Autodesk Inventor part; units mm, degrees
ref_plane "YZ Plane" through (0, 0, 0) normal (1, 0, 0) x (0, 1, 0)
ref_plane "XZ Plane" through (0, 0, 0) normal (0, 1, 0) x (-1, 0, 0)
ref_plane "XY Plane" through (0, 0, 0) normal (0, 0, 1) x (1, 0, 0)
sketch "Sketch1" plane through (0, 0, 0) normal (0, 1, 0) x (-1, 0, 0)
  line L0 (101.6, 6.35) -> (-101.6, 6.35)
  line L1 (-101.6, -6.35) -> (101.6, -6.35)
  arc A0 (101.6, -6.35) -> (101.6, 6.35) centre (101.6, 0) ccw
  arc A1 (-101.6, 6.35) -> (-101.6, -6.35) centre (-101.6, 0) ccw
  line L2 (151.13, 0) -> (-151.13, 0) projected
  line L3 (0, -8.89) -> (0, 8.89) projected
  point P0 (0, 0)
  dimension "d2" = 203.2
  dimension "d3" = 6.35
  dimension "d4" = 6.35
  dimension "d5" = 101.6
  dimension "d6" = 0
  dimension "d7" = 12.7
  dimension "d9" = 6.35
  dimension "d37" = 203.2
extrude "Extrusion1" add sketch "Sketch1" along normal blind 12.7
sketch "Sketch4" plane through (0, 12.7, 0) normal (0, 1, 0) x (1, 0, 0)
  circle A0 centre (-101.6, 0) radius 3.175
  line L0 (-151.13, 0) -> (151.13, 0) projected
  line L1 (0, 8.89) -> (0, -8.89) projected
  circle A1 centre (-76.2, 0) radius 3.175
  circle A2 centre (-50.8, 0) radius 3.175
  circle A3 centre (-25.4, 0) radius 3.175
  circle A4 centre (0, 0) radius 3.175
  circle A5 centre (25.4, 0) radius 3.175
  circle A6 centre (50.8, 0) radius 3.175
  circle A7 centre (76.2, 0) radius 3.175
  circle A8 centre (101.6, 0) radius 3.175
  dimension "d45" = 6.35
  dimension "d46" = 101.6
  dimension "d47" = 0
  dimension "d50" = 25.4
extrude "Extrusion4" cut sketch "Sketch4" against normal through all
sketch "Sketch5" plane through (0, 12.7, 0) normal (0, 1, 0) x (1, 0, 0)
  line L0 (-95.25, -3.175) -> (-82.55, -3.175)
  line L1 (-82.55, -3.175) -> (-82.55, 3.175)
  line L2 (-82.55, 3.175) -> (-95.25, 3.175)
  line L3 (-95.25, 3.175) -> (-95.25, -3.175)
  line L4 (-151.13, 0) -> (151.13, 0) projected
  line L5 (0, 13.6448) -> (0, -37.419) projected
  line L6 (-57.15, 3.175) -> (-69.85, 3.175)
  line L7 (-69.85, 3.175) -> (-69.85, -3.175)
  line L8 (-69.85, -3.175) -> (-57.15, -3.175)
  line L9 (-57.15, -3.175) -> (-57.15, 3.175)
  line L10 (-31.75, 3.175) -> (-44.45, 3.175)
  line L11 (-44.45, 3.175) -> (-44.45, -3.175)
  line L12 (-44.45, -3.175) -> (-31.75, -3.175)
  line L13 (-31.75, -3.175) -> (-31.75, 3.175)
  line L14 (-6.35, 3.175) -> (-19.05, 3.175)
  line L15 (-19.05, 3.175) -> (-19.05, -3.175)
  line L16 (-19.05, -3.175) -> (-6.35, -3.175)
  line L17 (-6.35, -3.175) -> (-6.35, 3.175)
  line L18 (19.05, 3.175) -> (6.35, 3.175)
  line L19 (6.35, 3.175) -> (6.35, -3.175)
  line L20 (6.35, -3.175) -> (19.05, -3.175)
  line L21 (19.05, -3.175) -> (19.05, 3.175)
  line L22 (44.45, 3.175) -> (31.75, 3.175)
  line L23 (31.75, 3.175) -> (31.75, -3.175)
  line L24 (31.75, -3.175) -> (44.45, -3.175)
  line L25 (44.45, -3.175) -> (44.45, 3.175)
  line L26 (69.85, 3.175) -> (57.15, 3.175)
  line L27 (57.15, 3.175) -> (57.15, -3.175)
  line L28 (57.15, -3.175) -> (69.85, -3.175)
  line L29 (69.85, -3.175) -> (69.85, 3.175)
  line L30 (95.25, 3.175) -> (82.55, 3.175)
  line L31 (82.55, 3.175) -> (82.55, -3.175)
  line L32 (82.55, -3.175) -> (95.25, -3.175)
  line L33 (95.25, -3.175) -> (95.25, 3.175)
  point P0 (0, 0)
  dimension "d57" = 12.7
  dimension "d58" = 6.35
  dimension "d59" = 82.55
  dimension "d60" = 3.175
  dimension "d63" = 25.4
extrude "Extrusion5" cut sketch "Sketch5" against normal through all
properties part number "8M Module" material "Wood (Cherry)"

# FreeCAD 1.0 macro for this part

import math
import FreeCAD as App
import Part
import Sketcher
from FreeCAD import Vector
Q = App.Units.Quantity


def add_polygon(sketch, points):
    """Adds a closed chain of lines whose ends are joined by coincident constraints."""
    first, n = sketch.GeometryCount, len(points)
    for a, b in zip(points, points[1:] + points[:1]):
        sketch.addGeometry(Part.LineSegment(App.Vector(*a, 0), App.Vector(*b, 0)), False)
    for i in range(n):
        sketch.addConstraint(Sketcher.Constraint("Coincident", first + i, 2, first + (i + 1) % n, 1))

doc = App.newDocument("Part")
body = doc.addObject("PartDesign::Body", "Body")

sketch1 = doc.addObject("Sketcher::SketchObject", "Sketch")
body.addObject(sketch1)
sketch1.AttachmentSupport = (doc.XZ_Plane, [""])
sketch1.MapMode = "FlatFace"
sketch1.addGeometry(Part.LineSegment(Vector(-102, 6, 0), Vector(102, 6, 0)), False)
sketch1.addGeometry(Part.ArcOfCircle(Part.Circle(Vector(102, 0, 0), Vector(0, 0, 1), 6), math.radians(-90), math.radians(90)), False)
sketch1.addGeometry(Part.LineSegment(Vector(102, -6, 0), Vector(-102, -6, 0)), False)
sketch1.addGeometry(Part.ArcOfCircle(Part.Circle(Vector(-102, 0, 0), Vector(0, 0, 1), 6), math.radians(90), math.radians(270)), False)
sketch1.addConstraint(Sketcher.Constraint("Tangent", 0, 2, 1, 2))
sketch1.addConstraint(Sketcher.Constraint("Tangent", 1, 1, 2, 1))
sketch1.addConstraint(Sketcher.Constraint("Tangent", 2, 2, 3, 2))
sketch1.addConstraint(Sketcher.Constraint("Tangent", 3, 1, 0, 1))
sketch1.addConstraint(Sketcher.Constraint("Horizontal", 0))
sketch1.addConstraint(Sketcher.Constraint("Horizontal", 2))
sketch1.addConstraint(Sketcher.Constraint("Symmetric", 1, 3, 3, 3, -1, 1))
sketch1.addConstraint(Sketcher.Constraint("DistanceX", 0, 1, 0, 2, Q("8 in")))
sketch1.addConstraint(Sketcher.Constraint("Radius", 1, Q("0.25 in")))
pad1 = doc.addObject("PartDesign::Pad", "Pad")
body.addObject(pad1)
pad1.Profile = sketch1
pad1.Length = Q("0.5 in")
pad1.Reversed = True

sketch2 = doc.addObject("Sketcher::SketchObject", "Sketch001")
body.addObject(sketch2)
sketch2.AttachmentSupport = (doc.XZ_Plane, [""])
sketch2.MapMode = "FlatFace"
sketch2.AttachmentOffset = App.Placement(Vector(0, 0, -0.5 * 25.4), App.Rotation())
sketch2.addGeometry(Part.Circle(Vector(-101.6, 0, 0), Vector(0, 0, 1), 3.2), False)
sketch2.addGeometry(Part.Circle(Vector(101.6, 0, 0), Vector(0, 0, 1), 3.2), False)
sketch2.addGeometry(Part.Circle(Vector(76.2, 0, 0), Vector(0, 0, 1), 3.2), False)
sketch2.addGeometry(Part.Circle(Vector(50.8, 0, 0), Vector(0, 0, 1), 3.2), False)
sketch2.addGeometry(Part.Circle(Vector(25.4, 0, 0), Vector(0, 0, 1), 3.2), False)
sketch2.addGeometry(Part.Circle(Vector(0, 0, 0), Vector(0, 0, 1), 3.2), False)
sketch2.addGeometry(Part.Circle(Vector(-25.4, 0, 0), Vector(0, 0, 1), 3.2), False)
sketch2.addGeometry(Part.Circle(Vector(-50.8, 0, 0), Vector(0, 0, 1), 3.2), False)
sketch2.addGeometry(Part.Circle(Vector(-76.2, 0, 0), Vector(0, 0, 1), 3.2), False)
sketch2.addConstraint(Sketcher.Constraint("Coincident", 5, 3, -1, 1))
sketch2.addConstraint(Sketcher.Constraint("Equal", 0, 1))
sketch2.addConstraint(Sketcher.Constraint("Equal", 1, 2))
sketch2.addConstraint(Sketcher.Constraint("Equal", 2, 3))
sketch2.addConstraint(Sketcher.Constraint("Equal", 3, 4))
sketch2.addConstraint(Sketcher.Constraint("Equal", 4, 5))
sketch2.addConstraint(Sketcher.Constraint("Equal", 5, 6))
sketch2.addConstraint(Sketcher.Constraint("Equal", 6, 7))
sketch2.addConstraint(Sketcher.Constraint("Equal", 7, 8))
sketch2.addConstraint(Sketcher.Constraint("Symmetric", 0, 3, 1, 3, -1, 1))
sketch2.addConstraint(Sketcher.Constraint("Symmetric", 4, 3, 6, 3, -1, 1))
sketch2.addConstraint(Sketcher.Constraint("Symmetric", 3, 3, 7, 3, -1, 1))
sketch2.addConstraint(Sketcher.Constraint("Symmetric", 2, 3, 8, 3, -1, 1))
sketch2.addConstraint(Sketcher.Constraint("PointOnObject", 0, 3, -1))
sketch2.addConstraint(Sketcher.Constraint("PointOnObject", 2, 3, -1))
sketch2.addConstraint(Sketcher.Constraint("PointOnObject", 3, 3, -1))
sketch2.addConstraint(Sketcher.Constraint("PointOnObject", 4, 3, -1))
sketch2.addConstraint(Sketcher.Constraint("Diameter", 0, Q("0.25 in")))
sketch2.addConstraint(Sketcher.Constraint("DistanceX", 0, 3, -1, 1, Q("4 in")))
sketch2.addConstraint(Sketcher.Constraint("DistanceX", -1, 1, 4, 3, Q("1 in")))
sketch2.addConstraint(Sketcher.Constraint("DistanceX", 2, 3, 1, 3, Q("1 in")))
sketch2.addConstraint(Sketcher.Constraint("DistanceX", 3, 3, 2, 3, Q("1 in")))
pocket1 = doc.addObject("PartDesign::Pocket", "Pocket")
body.addObject(pocket1)
pocket1.Profile = sketch2
pocket1.Type = "ThroughAll"
pocket1.Reversed = True

sketch3 = doc.addObject("Sketcher::SketchObject", "Sketch002")
body.addObject(sketch3)
sketch3.AttachmentSupport = (doc.XZ_Plane, [""])
sketch3.MapMode = "FlatFace"
sketch3.AttachmentOffset = App.Placement(Vector(0, 0, -0.5 * 25.4), App.Rotation())
add_polygon(sketch3, [(-95, 3), (-83, 3), (-83, -3), (-95, -3)])
add_polygon(sketch3, [(83, -3), (83, 3), (95, 3), (95, -3)])
add_polygon(sketch3, [(57, -3), (57, 3), (70, 3), (70, -3)])
add_polygon(sketch3, [(32, -3), (32, 3), (44, 3), (44, -3)])
add_polygon(sketch3, [(6, -3), (6, 3), (19, 3), (19, -3)])
add_polygon(sketch3, [(-19, -3), (-19, 3), (-6, 3), (-6, -3)])
add_polygon(sketch3, [(-44, -3), (-44, 3), (-32, 3), (-32, -3)])
add_polygon(sketch3, [(-70, -3), (-70, 3), (-57, 3), (-57, -3)])
sketch3.addConstraint(Sketcher.Constraint("Horizontal", 0))
sketch3.addConstraint(Sketcher.Constraint("Vertical", 1))
sketch3.addConstraint(Sketcher.Constraint("Horizontal", 2))
sketch3.addConstraint(Sketcher.Constraint("Vertical", 3))
sketch3.addConstraint(Sketcher.Constraint("Vertical", 4))
sketch3.addConstraint(Sketcher.Constraint("Horizontal", 5))
sketch3.addConstraint(Sketcher.Constraint("Vertical", 6))
sketch3.addConstraint(Sketcher.Constraint("Horizontal", 7))
sketch3.addConstraint(Sketcher.Constraint("Vertical", 8))
sketch3.addConstraint(Sketcher.Constraint("Horizontal", 9))
sketch3.addConstraint(Sketcher.Constraint("Vertical", 10))
sketch3.addConstraint(Sketcher.Constraint("Horizontal", 11))
sketch3.addConstraint(Sketcher.Constraint("Vertical", 12))
sketch3.addConstraint(Sketcher.Constraint("Horizontal", 13))
sketch3.addConstraint(Sketcher.Constraint("Vertical", 14))
sketch3.addConstraint(Sketcher.Constraint("Horizontal", 15))
sketch3.addConstraint(Sketcher.Constraint("Vertical", 16))
sketch3.addConstraint(Sketcher.Constraint("Horizontal", 17))
sketch3.addConstraint(Sketcher.Constraint("Vertical", 18))
sketch3.addConstraint(Sketcher.Constraint("Horizontal", 19))
sketch3.addConstraint(Sketcher.Constraint("Vertical", 20))
sketch3.addConstraint(Sketcher.Constraint("Horizontal", 21))
sketch3.addConstraint(Sketcher.Constraint("Vertical", 22))
sketch3.addConstraint(Sketcher.Constraint("Horizontal", 23))
sketch3.addConstraint(Sketcher.Constraint("Vertical", 24))
sketch3.addConstraint(Sketcher.Constraint("Horizontal", 25))
sketch3.addConstraint(Sketcher.Constraint("Vertical", 26))
sketch3.addConstraint(Sketcher.Constraint("Horizontal", 27))
sketch3.addConstraint(Sketcher.Constraint("Vertical", 28))
sketch3.addConstraint(Sketcher.Constraint("Horizontal", 29))
sketch3.addConstraint(Sketcher.Constraint("Vertical", 30))
sketch3.addConstraint(Sketcher.Constraint("Horizontal", 31))
sketch3.addConstraint(Sketcher.Constraint("Symmetric", 1, 2, 4, 2, -1, 1))
sketch3.addConstraint(Sketcher.Constraint("Symmetric", 3, 2, 6, 2, -1, 1))
sketch3.addConstraint(Sketcher.Constraint("Symmetric", 18, 2, 20, 2, -1, 1))
sketch3.addConstraint(Sketcher.Constraint("Symmetric", 16, 2, 22, 2, -1, 1))
sketch3.addConstraint(Sketcher.Constraint("Symmetric", 14, 2, 24, 2, -1, 1))
sketch3.addConstraint(Sketcher.Constraint("Symmetric", 12, 2, 26, 2, -1, 1))
sketch3.addConstraint(Sketcher.Constraint("Symmetric", 10, 2, 28, 2, -1, 1))
sketch3.addConstraint(Sketcher.Constraint("Symmetric", 8, 2, 30, 2, -1, 1))
sketch3.addConstraint(Sketcher.Constraint("Horizontal", 3, 2, 4, 2))
sketch3.addConstraint(Sketcher.Constraint("Horizontal", 5, 2, 8, 2))
sketch3.addConstraint(Sketcher.Constraint("Horizontal", 7, 2, 10, 2))
sketch3.addConstraint(Sketcher.Constraint("Horizontal", 9, 2, 12, 2))
sketch3.addConstraint(Sketcher.Constraint("Horizontal", 11, 2, 14, 2))
sketch3.addConstraint(Sketcher.Constraint("Horizontal", 13, 2, 16, 2))
sketch3.addConstraint(Sketcher.Constraint("Horizontal", 15, 2, 18, 2))
sketch3.addConstraint(Sketcher.Constraint("Equal", 7, 9))
sketch3.addConstraint(Sketcher.Constraint("Equal", 11, 13))
sketch3.addConstraint(Sketcher.Constraint("Equal", 15, 17))
sketch3.addConstraint(Sketcher.Constraint("DistanceX", 0, 1, 0, 2, Q("0.5 in")))
sketch3.addConstraint(Sketcher.Constraint("DistanceX", 8, 2, 4, 2, Q("1 in")))
sketch3.addConstraint(Sketcher.Constraint("DistanceX", 12, 2, 8, 2, Q("1 in")))
sketch3.addConstraint(Sketcher.Constraint("DistanceX", 16, 2, 12, 2, Q("1 in")))
sketch3.addConstraint(Sketcher.Constraint("DistanceX", 20, 2, 16, 2, Q("1 in")))
sketch3.addConstraint(Sketcher.Constraint("DistanceY", 1, 2, 1, 1, Q("0.25 in")))
pocket2 = doc.addObject("PartDesign::Pocket", "Pocket001")
body.addObject(pocket2)
pocket2.Profile = sketch3
pocket2.Type = "ThroughAll"
pocket2.Reversed = True

doc.recompute()
